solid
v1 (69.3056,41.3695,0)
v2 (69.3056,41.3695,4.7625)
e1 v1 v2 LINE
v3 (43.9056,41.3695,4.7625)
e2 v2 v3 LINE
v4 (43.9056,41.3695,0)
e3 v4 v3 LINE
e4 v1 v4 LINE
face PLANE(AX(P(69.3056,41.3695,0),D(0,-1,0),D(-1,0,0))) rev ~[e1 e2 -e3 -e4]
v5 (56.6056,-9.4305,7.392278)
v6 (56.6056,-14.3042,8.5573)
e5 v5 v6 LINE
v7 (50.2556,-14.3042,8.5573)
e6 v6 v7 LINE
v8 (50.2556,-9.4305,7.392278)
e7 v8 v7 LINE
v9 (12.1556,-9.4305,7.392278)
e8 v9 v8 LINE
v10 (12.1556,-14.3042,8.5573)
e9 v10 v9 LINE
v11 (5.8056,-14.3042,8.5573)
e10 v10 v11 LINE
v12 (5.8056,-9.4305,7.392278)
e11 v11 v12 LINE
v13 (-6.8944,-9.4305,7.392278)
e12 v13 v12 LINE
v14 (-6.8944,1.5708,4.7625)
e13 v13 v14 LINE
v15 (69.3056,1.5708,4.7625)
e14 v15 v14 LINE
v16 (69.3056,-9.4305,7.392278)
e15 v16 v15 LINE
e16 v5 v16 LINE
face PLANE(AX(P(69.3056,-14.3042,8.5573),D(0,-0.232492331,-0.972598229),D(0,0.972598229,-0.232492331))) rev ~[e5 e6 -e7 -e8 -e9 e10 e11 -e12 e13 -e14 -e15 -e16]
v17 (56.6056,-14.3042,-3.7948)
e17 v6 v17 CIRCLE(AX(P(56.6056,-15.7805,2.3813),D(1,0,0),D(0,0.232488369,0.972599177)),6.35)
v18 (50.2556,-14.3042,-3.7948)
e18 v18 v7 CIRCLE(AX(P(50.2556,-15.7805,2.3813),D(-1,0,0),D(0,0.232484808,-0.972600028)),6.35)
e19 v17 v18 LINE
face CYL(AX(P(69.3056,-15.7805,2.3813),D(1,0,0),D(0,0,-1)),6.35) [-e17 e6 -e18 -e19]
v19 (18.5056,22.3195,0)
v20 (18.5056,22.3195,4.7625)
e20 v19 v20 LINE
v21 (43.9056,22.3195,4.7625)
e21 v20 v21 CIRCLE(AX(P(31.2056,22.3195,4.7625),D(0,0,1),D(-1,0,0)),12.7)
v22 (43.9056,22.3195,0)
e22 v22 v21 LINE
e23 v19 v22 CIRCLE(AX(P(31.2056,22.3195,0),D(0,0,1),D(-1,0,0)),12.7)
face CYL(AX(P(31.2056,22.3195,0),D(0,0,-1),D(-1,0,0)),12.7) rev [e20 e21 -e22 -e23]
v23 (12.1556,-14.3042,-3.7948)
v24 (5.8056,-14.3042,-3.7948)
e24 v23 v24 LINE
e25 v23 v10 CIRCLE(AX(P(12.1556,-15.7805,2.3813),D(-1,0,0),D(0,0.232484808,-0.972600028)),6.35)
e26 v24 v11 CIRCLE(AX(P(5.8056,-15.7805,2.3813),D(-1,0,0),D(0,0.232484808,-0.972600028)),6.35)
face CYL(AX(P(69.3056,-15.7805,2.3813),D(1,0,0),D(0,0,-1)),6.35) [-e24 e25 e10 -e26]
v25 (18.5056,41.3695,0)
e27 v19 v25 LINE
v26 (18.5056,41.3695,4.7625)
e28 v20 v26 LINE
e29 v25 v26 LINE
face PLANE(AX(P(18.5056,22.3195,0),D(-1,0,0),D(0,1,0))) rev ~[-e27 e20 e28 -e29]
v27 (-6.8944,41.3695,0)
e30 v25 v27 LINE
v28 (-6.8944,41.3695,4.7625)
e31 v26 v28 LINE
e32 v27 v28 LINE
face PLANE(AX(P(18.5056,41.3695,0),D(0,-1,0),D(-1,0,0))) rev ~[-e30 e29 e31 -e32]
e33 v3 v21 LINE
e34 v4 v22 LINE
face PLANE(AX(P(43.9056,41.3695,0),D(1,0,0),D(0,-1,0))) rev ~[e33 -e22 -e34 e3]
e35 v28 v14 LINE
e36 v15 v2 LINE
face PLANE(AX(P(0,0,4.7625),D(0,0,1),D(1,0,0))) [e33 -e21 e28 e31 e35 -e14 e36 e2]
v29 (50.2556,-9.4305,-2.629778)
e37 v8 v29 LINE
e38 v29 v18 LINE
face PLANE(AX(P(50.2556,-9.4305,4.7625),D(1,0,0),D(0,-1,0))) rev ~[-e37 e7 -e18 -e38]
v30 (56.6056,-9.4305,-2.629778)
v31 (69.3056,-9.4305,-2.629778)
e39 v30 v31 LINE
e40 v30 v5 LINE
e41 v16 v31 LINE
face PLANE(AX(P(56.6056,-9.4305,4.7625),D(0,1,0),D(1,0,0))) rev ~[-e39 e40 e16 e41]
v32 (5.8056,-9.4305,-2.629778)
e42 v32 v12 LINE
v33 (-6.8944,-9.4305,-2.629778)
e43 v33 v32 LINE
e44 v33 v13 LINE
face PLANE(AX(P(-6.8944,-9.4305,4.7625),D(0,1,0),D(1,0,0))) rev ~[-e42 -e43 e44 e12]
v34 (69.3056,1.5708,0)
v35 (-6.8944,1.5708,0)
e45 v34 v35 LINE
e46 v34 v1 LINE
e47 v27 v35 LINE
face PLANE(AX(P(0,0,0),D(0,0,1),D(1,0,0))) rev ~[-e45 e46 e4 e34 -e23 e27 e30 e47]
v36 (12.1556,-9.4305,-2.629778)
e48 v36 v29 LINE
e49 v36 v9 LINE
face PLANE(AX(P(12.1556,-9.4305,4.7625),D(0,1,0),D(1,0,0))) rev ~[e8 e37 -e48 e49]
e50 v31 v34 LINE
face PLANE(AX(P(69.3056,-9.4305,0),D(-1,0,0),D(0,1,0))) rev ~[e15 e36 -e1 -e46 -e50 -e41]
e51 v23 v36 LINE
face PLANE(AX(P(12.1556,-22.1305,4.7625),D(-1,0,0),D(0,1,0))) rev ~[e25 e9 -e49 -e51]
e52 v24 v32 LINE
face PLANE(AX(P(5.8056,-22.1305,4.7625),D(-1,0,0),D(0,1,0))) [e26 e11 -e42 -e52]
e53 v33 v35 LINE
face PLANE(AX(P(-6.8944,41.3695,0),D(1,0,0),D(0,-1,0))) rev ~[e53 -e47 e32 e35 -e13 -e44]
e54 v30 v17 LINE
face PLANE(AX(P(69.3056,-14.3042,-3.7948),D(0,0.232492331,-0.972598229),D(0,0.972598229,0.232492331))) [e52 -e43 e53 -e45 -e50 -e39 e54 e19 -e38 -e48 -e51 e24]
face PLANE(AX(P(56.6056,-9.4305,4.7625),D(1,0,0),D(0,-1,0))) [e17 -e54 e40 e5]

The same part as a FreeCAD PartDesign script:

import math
import FreeCAD as App
import Part
import Sketcher
from FreeCAD import Vector
Q = App.Units.Quantity

doc = App.newDocument("Part")
body = doc.addObject("PartDesign::Body", "Body")

sketch1 = doc.addObject("Sketcher::SketchObject", "Sketch")
body.addObject(sketch1)
sketch1.AttachmentSupport = (doc.XY_Plane, [""])
sketch1.MapMode = "FlatFace"
sketch1.addGeometry([
    Part.LineSegment(Vector(-7, 41, 0), Vector(-7, -9, 0)),
    Part.LineSegment(Vector(-7, -9, 0), Vector(69, -9, 0)),
    Part.LineSegment(Vector(69, -9, 0), Vector(69, 41, 0)),
    Part.LineSegment(Vector(69, 41, 0), Vector(44, 41, 0)),
    Part.LineSegment(Vector(44, 41, 0), Vector(44, 22, 0)),
    Part.ArcOfCircle(Part.Circle(Vector(31, 22, 0), Vector(0, 0, 1), 13), math.radians(180), math.radians(360)),
    Part.LineSegment(Vector(19, 22, 0), Vector(19, 41, 0)),
    Part.LineSegment(Vector(19, 41, 0), Vector(-7, 41, 0)),
], False)
sketch1.addConstraint([
    Sketcher.Constraint("Coincident", 0, 2, 1, 1),
    Sketcher.Constraint("Coincident", 1, 2, 2, 1),
    Sketcher.Constraint("Coincident", 2, 2, 3, 1),
    Sketcher.Constraint("Coincident", 3, 2, 4, 1),
    Sketcher.Constraint("Tangent", 4, 2, 5, 2),
    Sketcher.Constraint("Tangent", 5, 1, 6, 1),
    Sketcher.Constraint("Coincident", 6, 2, 7, 1),
    Sketcher.Constraint("Coincident", 7, 2, 0, 1),
    Sketcher.Constraint("Vertical", 0),
    Sketcher.Constraint("Horizontal", 1),
    Sketcher.Constraint("Vertical", 2),
    Sketcher.Constraint("Horizontal", 3),
    Sketcher.Constraint("Vertical", 4),
    Sketcher.Constraint("Vertical", 6),
    Sketcher.Constraint("Horizontal", 7),
    Sketcher.Constraint("Horizontal", 3, 2, 6, 2),
    Sketcher.Constraint("Equal", 3, 7),
    Sketcher.Constraint("Radius", 5, Q("0.5 in")),
    Sketcher.Constraint("DistanceX", 1, 1, 1, 2, Q("3 in")),
    Sketcher.Constraint("DistanceY", 0, 2, 0, 1, Q("2 in")),
    Sketcher.Constraint("DistanceY", 4, 2, 4, 1, Q("0.75 in")),
    Sketcher.Constraint("DistanceX", -1, 1, 5, 3, Q("31.2056 mm")),
    Sketcher.Constraint("DistanceY", -1, 1, 5, 3, Q("22.3195 mm")),
])
pad1 = doc.addObject("PartDesign::Pad", "Pad")
body.addObject(pad1)
pad1.Profile = sketch1
pad1.Length = Q("0.1875 in")

sketch2 = doc.addObject("Sketcher::SketchObject", "Sketch001")
body.addObject(sketch2)
sketch2.AttachmentSupport = (doc.YZ_Plane, [""])
sketch2.MapMode = "FlatFace"
sketch2.AttachmentOffset = App.Placement(Vector(0, 0, 69.3056), App.Rotation())
sketch2.addGeometry([
    Part.LineSegment(Vector(-9.4, 4.8, 0), Vector(1.6, 4.8, 0)),
    Part.LineSegment(Vector(1.6, 4.8, 0), Vector(-14.3, 8.6, 0)),
    Part.ArcOfCircle(Part.Circle(Vector(-15.8, 2.4, 0), Vector(0, 0, 1), 6.3), math.radians(77), math.radians(283)),
    Part.LineSegment(Vector(-14.3, -3.8, 0), Vector(1.6, 0, 0)),
    Part.LineSegment(Vector(1.6, 0, 0), Vector(-9.4, 0, 0)),
    Part.LineSegment(Vector(-9.4, 0, 0), Vector(-9.4, 4.8, 0)),
], False)
sketch2.addConstraint([
    Sketcher.Constraint("Coincident", 0, 2, 1, 1),
    Sketcher.Constraint("Tangent", 1, 2, 2, 1),
    Sketcher.Constraint("Tangent", 2, 2, 3, 1),
    Sketcher.Constraint("Coincident", 3, 2, 4, 1),
    Sketcher.Constraint("Coincident", 4, 2, 5, 1),
    Sketcher.Constraint("Coincident", 5, 2, 0, 1),
    Sketcher.Constraint("Horizontal", 0),
    Sketcher.Constraint("Horizontal", 4),
    Sketcher.Constraint("Vertical", 5),
    Sketcher.Constraint("PointOnObject", 3, 2, -1),
    Sketcher.Constraint("Vertical", 1, 2, 2, 2),
    Sketcher.Constraint("Vertical", 0, 2, 3, 2),
    Sketcher.Constraint("Radius", 2, Q("0.25 in")),
    Sketcher.Constraint("DistanceX", 1, 2, 0, 2, Q("0.625 in")),
    Sketcher.Constraint("DistanceY", 5, 1, 5, 2, Q("0.1875 in")),
    Sketcher.Constraint("DistanceX", 2, 3, 4, 2, Q("0.25 in")),
    Sketcher.Constraint("DistanceX", 2, 3, -1, 1, Q("15.7805 mm")),
])
pad2 = doc.addObject("PartDesign::Pad", "Pad001")
body.addObject(pad2)
pad2.Profile = sketch2
pad2.Length = Q("3 in")
pad2.Reversed = True

sketch3 = doc.addObject("Sketcher::SketchObject", "Sketch002")
body.addObject(sketch3)
sketch3.AttachmentSupport = (doc.XY_Plane, [""])
sketch3.MapMode = "FlatFace"
sketch3.AttachmentOffset = App.Placement(Vector(0, 0, 0.1875 * 25.4), App.Rotation())
sketch3.addGeometry([
    Part.LineSegment(Vector(69, -9, 0), Vector(57, -9, 0)),
    Part.LineSegment(Vector(57, -9, 0), Vector(57, -22, 0)),
    Part.LineSegment(Vector(57, -22, 0), Vector(69, -22, 0)),
    Part.LineSegment(Vector(69, -22, 0), Vector(69, -9, 0)),
    Part.LineSegment(Vector(-7, -22, 0), Vector(6, -22, 0)),
    Part.LineSegment(Vector(6, -22, 0), Vector(6, -9, 0)),
    Part.LineSegment(Vector(6, -9, 0), Vector(-7, -9, 0)),
    Part.LineSegment(Vector(-7, -9, 0), Vector(-7, -22, 0)),
    Part.LineSegment(Vector(50, -9, 0), Vector(12, -9, 0)),
    Part.LineSegment(Vector(12, -9, 0), Vector(12, -22, 0)),
    Part.LineSegment(Vector(12, -22, 0), Vector(50, -22, 0)),
    Part.LineSegment(Vector(50, -22, 0), Vector(50, -9, 0)),
], False)
sketch3.addConstraint([
    Sketcher.Constraint("Coincident", 0, 2, 1, 1),
    Sketcher.Constraint("Coincident", 1, 2, 2, 1),
    Sketcher.Constraint("Coincident", 2, 2, 3, 1),
    Sketcher.Constraint("Coincident", 3, 2, 0, 1),
    Sketcher.Constraint("Coincident", 4, 2, 5, 1),
    Sketcher.Constraint("Coincident", 5, 2, 6, 1),
    Sketcher.Constraint("Coincident", 6, 2, 7, 1),
    Sketcher.Constraint("Coincident", 7, 2, 4, 1),
    Sketcher.Constraint("Coincident", 8, 2, 9, 1),
    Sketcher.Constraint("Coincident", 9, 2, 10, 1),
    Sketcher.Constraint("Coincident", 10, 2, 11, 1),
    Sketcher.Constraint("Coincident", 11, 2, 8, 1),
    Sketcher.Constraint("Horizontal", 0),
    Sketcher.Constraint("Vertical", 1),
    Sketcher.Constraint("Horizontal", 2),
    Sketcher.Constraint("Vertical", 3),
    Sketcher.Constraint("Horizontal", 4),
    Sketcher.Constraint("Vertical", 5),
    Sketcher.Constraint("Horizontal", 6),
    Sketcher.Constraint("Vertical", 7),
    Sketcher.Constraint("Horizontal", 8),
    Sketcher.Constraint("Vertical", 9),
    Sketcher.Constraint("Horizontal", 10),
    Sketcher.Constraint("Vertical", 11),
    Sketcher.Constraint("Horizontal", 2, 2, 4, 2),
    Sketcher.Constraint("Horizontal", 3, 2, 5, 2),
    Sketcher.Constraint("Horizontal", 6, 2, 8, 2),
    Sketcher.Constraint("Horizontal", 7, 2, 9, 2),
    Sketcher.Constraint("Equal", 2, 4),
    Sketcher.Constraint("Equal", 6, 1),
    Sketcher.Constraint("DistanceX", 0, 2, 0, 1, Q("0.5 in")),
    Sketcher.Constraint("DistanceX", 4, 2, 1, 2, Q("2 in")),
    Sketcher.Constraint("DistanceX", 5, 2, 8, 2, Q("0.25 in")),
    Sketcher.Constraint("DistanceX", 10, 2, 1, 2, Q("0.25 in")),
    Sketcher.Constraint("DistanceX", -1, 1, 0, 2, Q("56.6056 mm")),
    Sketcher.Constraint("DistanceY", 0, 2, -1, 1, Q("9.4305 mm")),
])
pocket1 = doc.addObject("PartDesign::Pocket", "Pocket")
body.addObject(pocket1)
pocket1.Profile = sketch3
pocket1.Type = "ThroughAll"
pocket1.Midplane = True

doc.recompute()
